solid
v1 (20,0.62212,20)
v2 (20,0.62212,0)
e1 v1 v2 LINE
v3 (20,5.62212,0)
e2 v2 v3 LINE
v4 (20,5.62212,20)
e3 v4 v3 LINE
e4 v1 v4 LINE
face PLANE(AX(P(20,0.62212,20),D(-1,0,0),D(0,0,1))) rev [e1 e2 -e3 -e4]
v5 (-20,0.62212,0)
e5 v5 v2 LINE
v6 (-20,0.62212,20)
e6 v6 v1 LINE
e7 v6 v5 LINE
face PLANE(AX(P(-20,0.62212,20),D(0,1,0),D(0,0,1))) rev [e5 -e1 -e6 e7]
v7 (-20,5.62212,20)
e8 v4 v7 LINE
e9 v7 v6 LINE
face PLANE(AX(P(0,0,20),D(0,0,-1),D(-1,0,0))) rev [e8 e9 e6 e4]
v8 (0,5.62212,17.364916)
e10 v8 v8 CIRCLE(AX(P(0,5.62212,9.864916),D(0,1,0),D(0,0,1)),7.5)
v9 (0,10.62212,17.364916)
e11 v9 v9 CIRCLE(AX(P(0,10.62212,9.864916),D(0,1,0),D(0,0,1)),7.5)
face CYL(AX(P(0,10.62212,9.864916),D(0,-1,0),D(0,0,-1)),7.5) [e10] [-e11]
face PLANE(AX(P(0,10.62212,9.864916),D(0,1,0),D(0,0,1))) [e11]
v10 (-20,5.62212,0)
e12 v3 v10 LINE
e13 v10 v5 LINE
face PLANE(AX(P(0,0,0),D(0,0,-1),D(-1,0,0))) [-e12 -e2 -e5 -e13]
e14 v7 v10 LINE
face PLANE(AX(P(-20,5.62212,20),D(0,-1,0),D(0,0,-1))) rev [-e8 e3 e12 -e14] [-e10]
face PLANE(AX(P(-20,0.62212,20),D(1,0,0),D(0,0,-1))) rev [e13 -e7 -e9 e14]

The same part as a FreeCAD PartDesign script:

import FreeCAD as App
import Part
import Sketcher

V = App.Vector
Q = App.Units.Quantity


def add_polygon(sketch, points):
    """Adds a closed chain of lines whose ends are joined by coincident constraints."""
    first, n = sketch.GeometryCount, len(points)
    for a, b in zip(points, points[1:] + points[:1]):
        sketch.addGeometry(Part.LineSegment(App.Vector(*a, 0), App.Vector(*b, 0)), False)
    for i in range(n):
        sketch.addConstraint(Sketcher.Constraint("Coincident", first + i, 2, first + (i + 1) % n, 1))

doc = App.newDocument("Part")
params = doc.addObject("Spreadsheet::Sheet", "Params")
for row, (alias, value) in enumerate([
    ("sketch1_width", "40 mm"),
    ("sketch1_height", "5 mm"),
    ("pad1_length", "20 mm"),
    ("sketch2_diameter", "15 mm"),
    ("pad2_length", "5 mm"),
], start=1):
    params.set(f"A{row}", alias)
    params.set(f"B{row}", "=" + value)
    params.setAlias(f"B{row}", alias)

body = doc.addObject("PartDesign::Body", "Body")

sketch1 = doc.addObject("Sketcher::SketchObject", "Sketch")
body.addObject(sketch1)
sketch1.AttachmentSupport = (doc.XY_Plane, [""])
sketch1.MapMode = "FlatFace"
add_polygon(sketch1, [(-20, 6), (-20, 1), (20, 1), (20, 6)])
sketch1.addConstraint([
    Sketcher.Constraint("Vertical", 0),
    Sketcher.Constraint("Horizontal", 1),
    Sketcher.Constraint("Vertical", 2),
    Sketcher.Constraint("Horizontal", 3),
    Sketcher.Constraint("DistanceX", 1, 1, 1, 2, Q("40 mm")),
    Sketcher.Constraint("DistanceY", 0, 2, 0, 1, Q("5 mm")),
    Sketcher.Constraint("DistanceX", 0, 2, -1, 1, Q("20 mm")),
    Sketcher.Constraint("DistanceY", -1, 1, 0, 2, Q("0.62212 mm")),
])
sketch1.setExpression("Constraints[8]", "Params.sketch1_width")
sketch1.setExpression("Constraints[9]", "Params.sketch1_height")
pad1 = doc.addObject("PartDesign::Pad", "Pad")
body.addObject(pad1)
pad1.Profile = sketch1
pad1.setExpression("Length", "Params.pad1_length")

sketch2 = doc.addObject("Sketcher::SketchObject", "Sketch001")
body.addObject(sketch2)
sketch2.AttachmentSupport = (doc.XZ_Plane, [""])
sketch2.MapMode = "FlatFace"
sketch2.AttachmentOffset = App.Placement(V(0, 0, -5.62212), App.Rotation())
sketch2.addGeometry(Part.Circle(V(0, 10, 0), V(0, 0, 1), 8), False)
sketch2.addConstraint([
    Sketcher.Constraint("PointOnObject", 0, 3, -2),
    Sketcher.Constraint("Diameter", 0, Q("15 mm")),
    Sketcher.Constraint("DistanceY", -1, 1, 0, 3, Q("9.864916 mm")),
])
sketch2.setExpression("Constraints[1]", "Params.sketch2_diameter")
pad2 = doc.addObject("PartDesign::Pad", "Pad001")
body.addObject(pad2)
pad2.Profile = sketch2
pad2.setExpression("Length", "Params.pad2_length")
pad2.Reversed = True

doc.recompute()
